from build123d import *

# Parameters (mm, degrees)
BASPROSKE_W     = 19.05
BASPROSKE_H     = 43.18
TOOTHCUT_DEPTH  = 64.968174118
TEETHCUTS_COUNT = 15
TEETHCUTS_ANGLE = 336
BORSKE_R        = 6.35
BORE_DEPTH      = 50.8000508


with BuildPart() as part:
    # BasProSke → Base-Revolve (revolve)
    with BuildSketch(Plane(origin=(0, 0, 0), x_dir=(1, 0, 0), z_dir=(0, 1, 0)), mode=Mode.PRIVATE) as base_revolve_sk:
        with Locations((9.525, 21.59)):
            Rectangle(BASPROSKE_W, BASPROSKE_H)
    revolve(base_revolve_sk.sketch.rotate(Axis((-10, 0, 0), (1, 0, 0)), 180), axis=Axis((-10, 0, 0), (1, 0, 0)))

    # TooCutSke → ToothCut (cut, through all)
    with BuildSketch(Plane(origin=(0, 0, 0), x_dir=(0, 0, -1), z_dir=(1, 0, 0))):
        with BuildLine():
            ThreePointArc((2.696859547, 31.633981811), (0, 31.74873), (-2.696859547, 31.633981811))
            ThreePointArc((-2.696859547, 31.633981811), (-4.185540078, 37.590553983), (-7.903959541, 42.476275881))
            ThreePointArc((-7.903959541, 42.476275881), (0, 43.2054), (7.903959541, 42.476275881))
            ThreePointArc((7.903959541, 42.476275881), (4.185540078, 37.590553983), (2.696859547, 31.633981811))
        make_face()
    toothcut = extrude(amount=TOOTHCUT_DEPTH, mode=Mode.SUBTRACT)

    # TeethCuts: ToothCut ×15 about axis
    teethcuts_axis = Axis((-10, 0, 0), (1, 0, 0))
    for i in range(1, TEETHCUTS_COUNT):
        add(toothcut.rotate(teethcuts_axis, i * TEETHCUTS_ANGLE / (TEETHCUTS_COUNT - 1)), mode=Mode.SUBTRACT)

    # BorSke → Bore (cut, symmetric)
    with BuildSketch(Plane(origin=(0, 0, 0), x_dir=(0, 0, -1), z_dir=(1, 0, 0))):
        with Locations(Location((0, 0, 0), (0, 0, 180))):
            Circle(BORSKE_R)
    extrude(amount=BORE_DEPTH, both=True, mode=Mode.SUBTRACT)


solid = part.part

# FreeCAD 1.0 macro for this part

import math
import FreeCAD as App
import Part
import Sketcher
Q = App.Units.Quantity


def add_polygon(sketch, points):
    """Adds a closed chain of lines whose ends are joined by coincident constraints."""
    first, n = sketch.GeometryCount, len(points)
    for a, b in zip(points, points[1:] + points[:1]):
        sketch.addGeometry(Part.LineSegment(App.Vector(*a, 0), App.Vector(*b, 0)), False)
    for i in range(n):
        sketch.addConstraint(Sketcher.Constraint("Coincident", first + i, 2, first + (i + 1) % n, 1))

doc = App.newDocument("Part")
body = doc.addObject("PartDesign::Body", "Body")

# Sketch on XZ plane
sketch1 = body.newObject("Sketcher::SketchObject", "Sketch")
sketch1.AttachmentSupport = (doc.getObject("XZ_Plane"), [""])
sketch1.MapMode = "FlatFace"
add_polygon(sketch1, [(0, -43), (0, 0), (19, 0), (19, -43)])  # lines 0-3
sketch1.addConstraint(Sketcher.Constraint("Vertical", 0))
sketch1.addConstraint(Sketcher.Constraint("Horizontal", 1))
sketch1.addConstraint(Sketcher.Constraint("Vertical", 2))
sketch1.addConstraint(Sketcher.Constraint("Horizontal", 3))
sketch1.addConstraint(Sketcher.Constraint("Coincident", 0, 2, -1, 1))
sketch1.addConstraint(Sketcher.Constraint("DistanceY", 0, 1, 0, 2, Q("1.7 in")))
sketch1.addConstraint(Sketcher.Constraint("DistanceX", 1, 1, 1, 2, Q("0.75 in")))
revolution = body.newObject("PartDesign::Revolution", "Revolution")
revolution.Profile = sketch1
revolution.ReferenceAxis = (sketch1, ["H_Axis"])
revolution.Angle = 360

# Sketch on YZ plane
sketch2 = body.newObject("Sketcher::SketchObject", "Sketch001")
sketch2.AttachmentSupport = (doc.getObject("YZ_Plane"), [""])
sketch2.MapMode = "FlatFace"
sketch2.addGeometry(Part.ArcOfCircle(Part.Circle(App.Vector(0, 0, 0), App.Vector(0, 0, 1), 32), math.radians(-4.87), math.radians(4.87)), False)
sketch2.addGeometry(Part.ArcOfCircle(Part.Circle(App.Vector(31, -18, 0), App.Vector(0, 0, 1), 15), math.radians(41), math.radians(88)), False)
sketch2.addGeometry(Part.ArcOfCircle(Part.Circle(App.Vector(0, 0, 0), App.Vector(0, 0, 1), 43), math.radians(-11), math.radians(11)), False)
sketch2.addGeometry(Part.ArcOfCircle(Part.Circle(App.Vector(31, 18, 0), App.Vector(0, 0, 1), 15), math.radians(-88), math.radians(-41)), False)
sketch2.addConstraint(Sketcher.Constraint("Coincident", 0, 1, 1, 2))
sketch2.addConstraint(Sketcher.Constraint("Coincident", 1, 1, 2, 1))
sketch2.addConstraint(Sketcher.Constraint("Coincident", 2, 2, 3, 2))
sketch2.addConstraint(Sketcher.Constraint("Coincident", 3, 1, 0, 2))
sketch2.addConstraint(Sketcher.Constraint("Coincident", 0, 3, -1, 1))
sketch2.addConstraint(Sketcher.Constraint("Coincident", 2, 3, -1, 1))
sketch2.addConstraint(Sketcher.Constraint("Equal", 1, 3))
sketch2.addConstraint(Sketcher.Constraint("Symmetric", 1, 3, 3, 3, -1))
sketch2.addConstraint(Sketcher.Constraint("Radius", 1, Q("0.6 in")))
sketch2.addConstraint(Sketcher.Constraint("Radius", 2, Q("1.701 in")))
sketch2.addConstraint(Sketcher.Constraint("Radius", 0, 31.74873))
sketch2.addConstraint(Sketcher.Constraint("DistanceY", 1, 1, 0, 1, 5.2071))
sketch2.addConstraint(Sketcher.Constraint("DistanceX", -1, 1, 1, 3, 30.99285))
pocket1 = body.newObject("PartDesign::Pocket", "Pocket")
pocket1.Profile = sketch2
pocket1.Type = "ThroughAll"
pocket1.Reversed = True
doc.recompute()

polarpattern = body.newObject("PartDesign::PolarPattern", "PolarPattern")
polarpattern.Originals = [pocket1]
polarpattern.Axis = (doc.getObject("X_Axis"), [""])
polarpattern.Angle = 360
polarpattern.Occurrences = 15
body.Tip = polarpattern

# Sketch on YZ plane
sketch3 = body.newObject("Sketcher::SketchObject", "Sketch002")
sketch3.AttachmentSupport = (doc.getObject("YZ_Plane"), [""])
sketch3.MapMode = "FlatFace"
sketch3.addGeometry(Part.Circle(App.Vector(0, 0, 0), App.Vector(0, 0, 1), 6), False)
sketch3.addConstraint(Sketcher.Constraint("Coincident", 0, 3, -1, 1))
sketch3.addConstraint(Sketcher.Constraint("Diameter", 0, Q("0.5 in")))
pocket2 = body.newObject("PartDesign::Pocket", "Pocket001")
pocket2.Profile = sketch3
pocket2.Length = 101.600102
pocket2.Midplane = True

doc.recompute()
